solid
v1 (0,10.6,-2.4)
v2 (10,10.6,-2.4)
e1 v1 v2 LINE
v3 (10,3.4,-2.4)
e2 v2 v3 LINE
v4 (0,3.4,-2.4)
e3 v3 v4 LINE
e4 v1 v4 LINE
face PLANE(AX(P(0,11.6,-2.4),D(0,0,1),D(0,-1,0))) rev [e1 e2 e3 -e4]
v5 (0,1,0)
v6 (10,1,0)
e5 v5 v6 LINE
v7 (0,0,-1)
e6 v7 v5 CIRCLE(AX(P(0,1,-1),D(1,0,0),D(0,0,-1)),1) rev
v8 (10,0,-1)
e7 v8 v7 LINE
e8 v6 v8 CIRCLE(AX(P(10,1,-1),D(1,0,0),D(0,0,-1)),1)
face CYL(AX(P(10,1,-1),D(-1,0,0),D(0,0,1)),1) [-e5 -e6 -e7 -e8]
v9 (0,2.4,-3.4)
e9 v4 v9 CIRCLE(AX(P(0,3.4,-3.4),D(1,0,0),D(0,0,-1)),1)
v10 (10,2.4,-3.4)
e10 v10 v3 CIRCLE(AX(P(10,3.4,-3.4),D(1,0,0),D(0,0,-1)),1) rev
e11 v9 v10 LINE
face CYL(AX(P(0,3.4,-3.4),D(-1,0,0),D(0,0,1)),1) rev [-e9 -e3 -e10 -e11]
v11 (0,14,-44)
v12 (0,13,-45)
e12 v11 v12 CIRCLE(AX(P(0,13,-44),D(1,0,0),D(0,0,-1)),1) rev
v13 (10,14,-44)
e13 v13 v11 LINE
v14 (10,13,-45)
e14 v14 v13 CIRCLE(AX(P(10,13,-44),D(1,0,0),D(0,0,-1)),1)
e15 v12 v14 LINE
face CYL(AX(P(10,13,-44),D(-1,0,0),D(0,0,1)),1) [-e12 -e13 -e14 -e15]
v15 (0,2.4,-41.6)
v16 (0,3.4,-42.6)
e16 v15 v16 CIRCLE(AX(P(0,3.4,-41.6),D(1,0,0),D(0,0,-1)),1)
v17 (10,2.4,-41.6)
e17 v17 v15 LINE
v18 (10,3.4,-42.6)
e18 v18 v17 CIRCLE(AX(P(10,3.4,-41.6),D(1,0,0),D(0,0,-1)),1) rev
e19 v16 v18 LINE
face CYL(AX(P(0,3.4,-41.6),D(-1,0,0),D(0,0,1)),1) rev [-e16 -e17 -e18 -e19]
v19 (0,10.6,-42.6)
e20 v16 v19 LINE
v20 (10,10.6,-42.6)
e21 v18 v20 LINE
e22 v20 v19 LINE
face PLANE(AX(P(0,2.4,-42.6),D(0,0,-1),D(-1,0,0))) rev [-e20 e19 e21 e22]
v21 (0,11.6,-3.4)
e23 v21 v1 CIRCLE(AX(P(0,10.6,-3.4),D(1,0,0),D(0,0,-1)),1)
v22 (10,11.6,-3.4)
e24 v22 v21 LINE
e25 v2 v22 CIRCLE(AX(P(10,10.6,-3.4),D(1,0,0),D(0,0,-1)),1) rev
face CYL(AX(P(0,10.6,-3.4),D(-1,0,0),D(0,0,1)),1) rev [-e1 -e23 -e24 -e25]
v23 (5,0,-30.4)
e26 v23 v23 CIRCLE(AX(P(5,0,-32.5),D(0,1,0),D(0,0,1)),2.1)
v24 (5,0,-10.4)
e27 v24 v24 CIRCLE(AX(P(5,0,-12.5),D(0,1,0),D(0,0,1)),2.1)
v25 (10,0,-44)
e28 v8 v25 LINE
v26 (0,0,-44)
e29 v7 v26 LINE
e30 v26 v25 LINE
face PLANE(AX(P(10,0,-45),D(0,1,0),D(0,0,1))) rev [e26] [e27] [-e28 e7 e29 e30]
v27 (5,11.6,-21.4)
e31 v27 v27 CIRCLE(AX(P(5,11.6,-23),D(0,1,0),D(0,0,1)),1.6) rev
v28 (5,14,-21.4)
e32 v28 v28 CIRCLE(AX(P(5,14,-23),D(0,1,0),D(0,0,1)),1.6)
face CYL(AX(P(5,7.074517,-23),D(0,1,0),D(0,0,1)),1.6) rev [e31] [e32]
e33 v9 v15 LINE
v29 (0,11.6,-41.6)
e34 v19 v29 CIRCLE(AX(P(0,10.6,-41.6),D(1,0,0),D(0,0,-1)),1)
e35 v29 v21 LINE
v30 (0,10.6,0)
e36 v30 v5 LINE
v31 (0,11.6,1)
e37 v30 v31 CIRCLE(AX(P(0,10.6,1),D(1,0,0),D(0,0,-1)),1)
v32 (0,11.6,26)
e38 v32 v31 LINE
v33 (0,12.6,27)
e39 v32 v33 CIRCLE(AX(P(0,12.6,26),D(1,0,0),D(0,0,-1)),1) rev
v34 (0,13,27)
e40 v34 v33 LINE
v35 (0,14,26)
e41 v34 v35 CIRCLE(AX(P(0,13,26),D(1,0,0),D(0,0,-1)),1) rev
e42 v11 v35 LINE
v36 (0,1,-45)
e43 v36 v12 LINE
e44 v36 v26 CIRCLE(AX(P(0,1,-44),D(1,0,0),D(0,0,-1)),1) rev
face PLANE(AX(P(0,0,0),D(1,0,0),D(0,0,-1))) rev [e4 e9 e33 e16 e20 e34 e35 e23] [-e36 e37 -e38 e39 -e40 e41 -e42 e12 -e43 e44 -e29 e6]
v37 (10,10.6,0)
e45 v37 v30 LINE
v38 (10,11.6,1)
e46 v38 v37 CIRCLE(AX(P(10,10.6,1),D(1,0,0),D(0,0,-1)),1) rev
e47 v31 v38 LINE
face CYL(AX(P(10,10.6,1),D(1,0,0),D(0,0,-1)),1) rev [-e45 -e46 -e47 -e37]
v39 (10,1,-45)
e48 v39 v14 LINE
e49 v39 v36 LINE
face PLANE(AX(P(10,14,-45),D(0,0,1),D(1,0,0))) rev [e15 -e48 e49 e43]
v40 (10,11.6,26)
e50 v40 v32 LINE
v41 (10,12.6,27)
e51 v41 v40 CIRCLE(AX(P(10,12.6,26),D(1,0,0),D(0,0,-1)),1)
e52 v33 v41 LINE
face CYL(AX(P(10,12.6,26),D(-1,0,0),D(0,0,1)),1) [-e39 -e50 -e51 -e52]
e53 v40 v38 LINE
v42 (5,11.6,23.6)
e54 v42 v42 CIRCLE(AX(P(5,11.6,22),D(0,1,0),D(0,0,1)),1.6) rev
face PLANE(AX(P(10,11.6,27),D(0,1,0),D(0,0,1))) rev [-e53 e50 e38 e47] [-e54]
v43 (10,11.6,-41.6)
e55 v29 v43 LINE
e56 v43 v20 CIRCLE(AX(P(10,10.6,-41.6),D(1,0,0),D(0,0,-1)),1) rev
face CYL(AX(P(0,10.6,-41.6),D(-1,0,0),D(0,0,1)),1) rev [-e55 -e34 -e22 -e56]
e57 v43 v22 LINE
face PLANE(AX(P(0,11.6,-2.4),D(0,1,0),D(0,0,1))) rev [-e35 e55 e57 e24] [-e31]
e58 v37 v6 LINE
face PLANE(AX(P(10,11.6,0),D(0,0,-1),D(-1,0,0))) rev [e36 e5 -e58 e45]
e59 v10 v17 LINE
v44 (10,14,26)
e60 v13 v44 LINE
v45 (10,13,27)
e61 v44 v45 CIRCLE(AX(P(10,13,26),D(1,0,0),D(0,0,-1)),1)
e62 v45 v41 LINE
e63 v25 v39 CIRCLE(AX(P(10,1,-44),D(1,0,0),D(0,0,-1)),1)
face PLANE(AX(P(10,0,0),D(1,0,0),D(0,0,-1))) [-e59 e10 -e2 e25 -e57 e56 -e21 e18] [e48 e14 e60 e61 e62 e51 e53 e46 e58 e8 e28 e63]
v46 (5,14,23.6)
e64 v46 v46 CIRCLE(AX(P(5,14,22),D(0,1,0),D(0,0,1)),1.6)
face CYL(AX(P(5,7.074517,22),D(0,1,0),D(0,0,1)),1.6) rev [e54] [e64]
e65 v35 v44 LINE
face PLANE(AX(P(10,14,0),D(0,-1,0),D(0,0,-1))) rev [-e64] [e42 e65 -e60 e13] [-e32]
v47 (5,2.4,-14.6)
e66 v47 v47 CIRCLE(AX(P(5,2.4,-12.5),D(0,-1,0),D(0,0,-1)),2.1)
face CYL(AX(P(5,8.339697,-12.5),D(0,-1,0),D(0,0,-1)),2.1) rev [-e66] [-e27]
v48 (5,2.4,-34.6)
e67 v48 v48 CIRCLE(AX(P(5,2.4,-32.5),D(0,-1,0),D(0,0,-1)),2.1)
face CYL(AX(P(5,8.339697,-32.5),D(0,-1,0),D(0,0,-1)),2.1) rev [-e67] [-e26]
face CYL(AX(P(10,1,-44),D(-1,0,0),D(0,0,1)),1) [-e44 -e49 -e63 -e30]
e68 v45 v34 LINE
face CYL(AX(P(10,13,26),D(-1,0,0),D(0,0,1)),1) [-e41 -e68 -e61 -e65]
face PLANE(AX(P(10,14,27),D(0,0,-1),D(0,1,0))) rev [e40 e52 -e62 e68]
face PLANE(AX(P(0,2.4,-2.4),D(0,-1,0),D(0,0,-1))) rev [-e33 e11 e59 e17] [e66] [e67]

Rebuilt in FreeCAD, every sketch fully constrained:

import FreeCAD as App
import Part
import Sketcher

V = App.Vector
Q = App.Units.Quantity


def edges_at(feature, points):
    """Names of the edges that pass closest to the given points."""
    edges = feature.Shape.Edges
    near = lambda p: min(range(len(edges)), key=lambda i: edges[i].distToShape(Part.Vertex(*p))[0])
    return sorted({f"Edge{near(p) + 1}" for p in points})


def add_polygon(sketch, points):
    """Adds a closed chain of lines whose ends are joined by coincident constraints."""
    first, n = sketch.GeometryCount, len(points)
    for a, b in zip(points, points[1:] + points[:1]):
        sketch.addGeometry(Part.LineSegment(App.Vector(*a, 0), App.Vector(*b, 0)), False)
    for i in range(n):
        sketch.addConstraint(Sketcher.Constraint("Coincident", first + i, 2, first + (i + 1) % n, 1))

doc = App.newDocument("Part")
body = doc.addObject("PartDesign::Body", "Body")

# Sketch on YZ plane
sketch1 = body.newObject("Sketcher::SketchObject", "Sketch")
sketch1.AttachmentSupport = (doc.getObject("YZ_Plane"), [""])
sketch1.MapMode = "FlatFace"
add_polygon(sketch1, [(11.6, 0), (0, 0), (0, -45), (14, -45), (14, 27), (11.6, 27)])  # lines 0-5
sketch1.addConstraint([
    Sketcher.Constraint("Horizontal", 0),
    Sketcher.Constraint("Vertical", 1),
    Sketcher.Constraint("Horizontal", 2),
    Sketcher.Constraint("Vertical", 3),
    Sketcher.Constraint("Horizontal", 4),
    Sketcher.Constraint("Vertical", 5),
    Sketcher.Constraint("Coincident", 0, 2, -1, 1),
    Sketcher.Constraint("DistanceX", 2, 1, 2, 2, Q("14 mm")),
    Sketcher.Constraint("DistanceY", 1, 2, 1, 1, Q("45 mm")),
    Sketcher.Constraint("DistanceY", 3, 1, 3, 2, Q("72 mm")),
    Sketcher.Constraint("DistanceX", 0, 2, 0, 1, Q("11.6 mm")),
])
pad1 = body.newObject("PartDesign::Pad", "Pad")
pad1.Profile = sketch1
pad1.Length = 10

# Sketch on YZ plane
sketch2 = body.newObject("Sketcher::SketchObject", "Sketch001")
sketch2.AttachmentSupport = (doc.getObject("YZ_Plane"), [""])
sketch2.MapMode = "FlatFace"
sketch2.AttachmentOffset = App.Placement(V(0, 0, 10), App.Rotation())
add_polygon(sketch2, [(12, -2), (2, -2), (2, -43), (12, -43)])  # lines 0-3
sketch2.addConstraint([
    Sketcher.Constraint("Horizontal", 0),
    Sketcher.Constraint("Vertical", 1),
    Sketcher.Constraint("Horizontal", 2),
    Sketcher.Constraint("Vertical", 3),
    Sketcher.Constraint("DistanceX", 0, 2, 0, 1, Q("9.2 mm")),
    Sketcher.Constraint("DistanceY", 1, 2, 1, 1, Q("40.2 mm")),
    Sketcher.Constraint("DistanceX", -1, 1, 0, 2, Q("2.4 mm")),
    Sketcher.Constraint("DistanceY", 0, 2, -1, 1, Q("2.4 mm")),
])
pocket1 = body.newObject("PartDesign::Pocket", "Pocket")
pocket1.Profile = sketch2
pocket1.Type = "ThroughAll"

# Sketch on XZ plane
sketch3 = body.newObject("Sketcher::SketchObject", "Sketch002")
sketch3.AttachmentSupport = (doc.getObject("XZ_Plane"), [""])
sketch3.MapMode = "FlatFace"
sketch3.addGeometry([
    Part.Circle(V(5, -32.5, 0), V(0, 0, 1), 2.1),
    Part.Circle(V(5, -12.5, 0), V(0, 0, 1), 2.1),
], False)
sketch3.addConstraint([
    Sketcher.Constraint("Equal", 0, 1),
    Sketcher.Constraint("Vertical", 0, 3, 1, 3),
    Sketcher.Constraint("Diameter", 0, Q("4.2 mm")),
    Sketcher.Constraint("DistanceX", -1, 1, 0, 3, Q("5 mm")),
    Sketcher.Constraint("DistanceY", 0, 3, 1, 3, Q("20 mm")),
    Sketcher.Constraint("DistanceY", 0, 3, -1, 1, Q("32.5 mm")),
])
pocket2 = body.newObject("PartDesign::Pocket", "Pocket001")
pocket2.Profile = sketch3
pocket2.Length = 2.4

# Sketch on XZ plane
sketch4 = body.newObject("Sketcher::SketchObject", "Sketch003")
sketch4.AttachmentSupport = (doc.getObject("XZ_Plane"), [""])
sketch4.MapMode = "FlatFace"
sketch4.AttachmentOffset = App.Placement(V(0, 0, -14), App.Rotation())
sketch4.addGeometry([
    Part.Circle(V(5, -23, 0), V(0, 0, 1), 1.6),
    Part.Circle(V(5, 22, 0), V(0, 0, 1), 1.6),
], False)
sketch4.addConstraint([
    Sketcher.Constraint("Equal", 0, 1),
    Sketcher.Constraint("Vertical", 0, 3, 1, 3),
    Sketcher.Constraint("Diameter", 0, Q("3.2 mm")),
    Sketcher.Constraint("DistanceX", -1, 1, 0, 3, Q("5 mm")),
    Sketcher.Constraint("DistanceY", 0, 3, -1, 1, Q("23 mm")),
    Sketcher.Constraint("DistanceY", -1, 1, 1, 3, Q("22 mm")),
])
pocket3 = body.newObject("PartDesign::Pocket", "Pocket002")
pocket3.Profile = sketch4
pocket3.Length = 2.4
pocket3.Reversed = True
doc.recompute()

fillet = body.newObject("PartDesign::Fillet", "Fillet")
fillet.Base = (pocket3, edges_at(pocket3, [
    (5, 0, 0),
    (5, 11.6, 0),
    (5, 11.6, 27),
    (5, 14, 27),
    (5, 14, -45),
    (5, 0, -45),
    (5, 2.4, -2.4),
    (5, 11.6, -2.4),
    (5, 11.6, -42.6),
    (5, 2.4, -42.6),
]))
fillet.Radius = 1

doc.recompute()
